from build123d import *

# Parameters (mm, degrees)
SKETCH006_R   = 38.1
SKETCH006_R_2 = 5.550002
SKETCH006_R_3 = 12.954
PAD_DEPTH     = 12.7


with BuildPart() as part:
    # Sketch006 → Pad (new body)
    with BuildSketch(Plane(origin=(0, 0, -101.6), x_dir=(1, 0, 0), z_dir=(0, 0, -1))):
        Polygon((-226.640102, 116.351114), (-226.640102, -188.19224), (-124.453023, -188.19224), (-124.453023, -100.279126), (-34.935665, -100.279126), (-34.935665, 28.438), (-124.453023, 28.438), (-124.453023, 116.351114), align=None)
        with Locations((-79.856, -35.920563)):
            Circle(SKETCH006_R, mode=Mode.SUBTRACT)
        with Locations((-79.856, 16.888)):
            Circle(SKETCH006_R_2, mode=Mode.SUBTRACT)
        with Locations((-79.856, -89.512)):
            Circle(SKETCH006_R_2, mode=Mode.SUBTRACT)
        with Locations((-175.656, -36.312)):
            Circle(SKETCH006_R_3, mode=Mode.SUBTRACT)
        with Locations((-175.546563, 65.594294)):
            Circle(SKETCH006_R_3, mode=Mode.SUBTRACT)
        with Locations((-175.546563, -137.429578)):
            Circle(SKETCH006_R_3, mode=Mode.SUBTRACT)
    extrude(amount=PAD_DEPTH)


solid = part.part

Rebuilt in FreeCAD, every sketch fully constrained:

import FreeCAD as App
import Part
import Sketcher
Q = App.Units.Quantity

doc = App.newDocument("Part")
body = doc.addObject("PartDesign::Body", "Body")

# Sketch on XY plane
sketch1 = body.newObject("Sketcher::SketchObject", "Sketch")
sketch1.AttachmentSupport = (doc.getObject("XY_Plane"), [""])
sketch1.MapMode = "FlatFace"
sketch1.AttachmentOffset = App.Placement(App.Vector(0, 0, -4 * 25.4), App.Rotation())
sketch1.addGeometry([
    Part.LineSegment(App.Vector(-227, -116, 0), App.Vector(-227, 188, 0)),  # 0
    Part.LineSegment(App.Vector(-227, 188, 0), App.Vector(-124, 188, 0)),  # 1
    Part.LineSegment(App.Vector(-124, 188, 0), App.Vector(-124, 100, 0)),  # 2
    Part.LineSegment(App.Vector(-124, 100, 0), App.Vector(-35, 100, 0)),  # 3
    Part.LineSegment(App.Vector(-35, 100, 0), App.Vector(-35, -28, 0)),  # 4
    Part.LineSegment(App.Vector(-35, -28, 0), App.Vector(-124, -28, 0)),  # 5
    Part.LineSegment(App.Vector(-124, -28, 0), App.Vector(-124, -116, 0)),  # 6
    Part.LineSegment(App.Vector(-124, -116, 0), App.Vector(-227, -116, 0)),  # 7
    Part.Circle(App.Vector(-176, 137, 0), App.Vector(0, 0, 1), 13),  # 8
    Part.Circle(App.Vector(-176, 36, 0), App.Vector(0, 0, 1), 13),  # 9
    Part.Circle(App.Vector(-80, 90, 0), App.Vector(0, 0, 1), 6),  # 10
    Part.Circle(App.Vector(-80, 36, 0), App.Vector(0, 0, 1), 38),  # 11
    Part.Circle(App.Vector(-176, -66, 0), App.Vector(0, 0, 1), 13),  # 12
    Part.Circle(App.Vector(-80, -17, 0), App.Vector(0, 0, 1), 6),  # 13
], False)
sketch1.addConstraint([
    Sketcher.Constraint("Coincident", 0, 2, 1, 1),
    Sketcher.Constraint("Coincident", 1, 2, 2, 1),
    Sketcher.Constraint("Coincident", 2, 2, 3, 1),
    Sketcher.Constraint("Coincident", 3, 2, 4, 1),
    Sketcher.Constraint("Coincident", 4, 2, 5, 1),
    Sketcher.Constraint("Coincident", 5, 2, 6, 1),
    Sketcher.Constraint("Coincident", 6, 2, 7, 1),
    Sketcher.Constraint("Coincident", 7, 2, 0, 1),
    Sketcher.Constraint("Vertical", 0),
    Sketcher.Constraint("Horizontal", 1),
    Sketcher.Constraint("Vertical", 2),
    Sketcher.Constraint("Horizontal", 3),
    Sketcher.Constraint("Vertical", 4),
    Sketcher.Constraint("Horizontal", 5),
    Sketcher.Constraint("Vertical", 6),
    Sketcher.Constraint("Horizontal", 7),
    Sketcher.Constraint("Equal", 8, 9),
    Sketcher.Constraint("Equal", 9, 12),
    Sketcher.Constraint("Equal", 10, 13),
    Sketcher.Constraint("Vertical", 10, 3, 11, 3),
    Sketcher.Constraint("Vertical", 8, 3, 12, 3),
    Sketcher.Constraint("Vertical", 11, 3, 13, 3),
    Sketcher.Constraint("Vertical", 2, 2, 5, 2),
    Sketcher.Constraint("Equal", 2, 6),
    Sketcher.Constraint("Diameter", 11, Q("3 in")),
    Sketcher.Constraint("Diameter", 8, Q("1.02 in")),
    Sketcher.Constraint("Diameter", 10, 11.100004),
    Sketcher.Constraint("DistanceY", 6, 2, 12, 3, Q("1.9983 in")),
    Sketcher.Constraint("DistanceX", 1, 1, 1, 2, 102.187079),
    Sketcher.Constraint("DistanceX", 3, 1, 3, 2, 89.517358),
    Sketcher.Constraint("DistanceX", 9, 3, -1, 1, 175.656),
    Sketcher.Constraint("DistanceY", -1, 1, 9, 3, 36.312),
    Sketcher.Constraint("DistanceX", 10, 3, -1, 1, 79.856),
    Sketcher.Constraint("DistanceY", -1, 1, 10, 3, 89.512),
    Sketcher.Constraint("DistanceY", 13, 3, -1, 1, 16.888),
    Sketcher.Constraint("DistanceY", 4, 2, -1, 1, 28.438),
    Sketcher.Constraint("DistanceX", 12, 3, 4, 2, 140.610898),
    Sketcher.Constraint("DistanceY", 0, 1, 0, 2, 304.543354),
    Sketcher.Constraint("DistanceY", 2, 2, 2, 1, 87.913114),
    Sketcher.Constraint("DistanceY", -1, 1, 8, 3, 137.429578),
    Sketcher.Constraint("DistanceX", 8, 3, -1, 1, 175.546563),
    Sketcher.Constraint("DistanceY", -1, 1, 11, 3, 35.920563),
])
pad1 = body.newObject("PartDesign::Pad", "Pad")
pad1.Profile = sketch1
pad1.Length = Q("0.5 in")
pad1.Reversed = True

doc.recompute()
